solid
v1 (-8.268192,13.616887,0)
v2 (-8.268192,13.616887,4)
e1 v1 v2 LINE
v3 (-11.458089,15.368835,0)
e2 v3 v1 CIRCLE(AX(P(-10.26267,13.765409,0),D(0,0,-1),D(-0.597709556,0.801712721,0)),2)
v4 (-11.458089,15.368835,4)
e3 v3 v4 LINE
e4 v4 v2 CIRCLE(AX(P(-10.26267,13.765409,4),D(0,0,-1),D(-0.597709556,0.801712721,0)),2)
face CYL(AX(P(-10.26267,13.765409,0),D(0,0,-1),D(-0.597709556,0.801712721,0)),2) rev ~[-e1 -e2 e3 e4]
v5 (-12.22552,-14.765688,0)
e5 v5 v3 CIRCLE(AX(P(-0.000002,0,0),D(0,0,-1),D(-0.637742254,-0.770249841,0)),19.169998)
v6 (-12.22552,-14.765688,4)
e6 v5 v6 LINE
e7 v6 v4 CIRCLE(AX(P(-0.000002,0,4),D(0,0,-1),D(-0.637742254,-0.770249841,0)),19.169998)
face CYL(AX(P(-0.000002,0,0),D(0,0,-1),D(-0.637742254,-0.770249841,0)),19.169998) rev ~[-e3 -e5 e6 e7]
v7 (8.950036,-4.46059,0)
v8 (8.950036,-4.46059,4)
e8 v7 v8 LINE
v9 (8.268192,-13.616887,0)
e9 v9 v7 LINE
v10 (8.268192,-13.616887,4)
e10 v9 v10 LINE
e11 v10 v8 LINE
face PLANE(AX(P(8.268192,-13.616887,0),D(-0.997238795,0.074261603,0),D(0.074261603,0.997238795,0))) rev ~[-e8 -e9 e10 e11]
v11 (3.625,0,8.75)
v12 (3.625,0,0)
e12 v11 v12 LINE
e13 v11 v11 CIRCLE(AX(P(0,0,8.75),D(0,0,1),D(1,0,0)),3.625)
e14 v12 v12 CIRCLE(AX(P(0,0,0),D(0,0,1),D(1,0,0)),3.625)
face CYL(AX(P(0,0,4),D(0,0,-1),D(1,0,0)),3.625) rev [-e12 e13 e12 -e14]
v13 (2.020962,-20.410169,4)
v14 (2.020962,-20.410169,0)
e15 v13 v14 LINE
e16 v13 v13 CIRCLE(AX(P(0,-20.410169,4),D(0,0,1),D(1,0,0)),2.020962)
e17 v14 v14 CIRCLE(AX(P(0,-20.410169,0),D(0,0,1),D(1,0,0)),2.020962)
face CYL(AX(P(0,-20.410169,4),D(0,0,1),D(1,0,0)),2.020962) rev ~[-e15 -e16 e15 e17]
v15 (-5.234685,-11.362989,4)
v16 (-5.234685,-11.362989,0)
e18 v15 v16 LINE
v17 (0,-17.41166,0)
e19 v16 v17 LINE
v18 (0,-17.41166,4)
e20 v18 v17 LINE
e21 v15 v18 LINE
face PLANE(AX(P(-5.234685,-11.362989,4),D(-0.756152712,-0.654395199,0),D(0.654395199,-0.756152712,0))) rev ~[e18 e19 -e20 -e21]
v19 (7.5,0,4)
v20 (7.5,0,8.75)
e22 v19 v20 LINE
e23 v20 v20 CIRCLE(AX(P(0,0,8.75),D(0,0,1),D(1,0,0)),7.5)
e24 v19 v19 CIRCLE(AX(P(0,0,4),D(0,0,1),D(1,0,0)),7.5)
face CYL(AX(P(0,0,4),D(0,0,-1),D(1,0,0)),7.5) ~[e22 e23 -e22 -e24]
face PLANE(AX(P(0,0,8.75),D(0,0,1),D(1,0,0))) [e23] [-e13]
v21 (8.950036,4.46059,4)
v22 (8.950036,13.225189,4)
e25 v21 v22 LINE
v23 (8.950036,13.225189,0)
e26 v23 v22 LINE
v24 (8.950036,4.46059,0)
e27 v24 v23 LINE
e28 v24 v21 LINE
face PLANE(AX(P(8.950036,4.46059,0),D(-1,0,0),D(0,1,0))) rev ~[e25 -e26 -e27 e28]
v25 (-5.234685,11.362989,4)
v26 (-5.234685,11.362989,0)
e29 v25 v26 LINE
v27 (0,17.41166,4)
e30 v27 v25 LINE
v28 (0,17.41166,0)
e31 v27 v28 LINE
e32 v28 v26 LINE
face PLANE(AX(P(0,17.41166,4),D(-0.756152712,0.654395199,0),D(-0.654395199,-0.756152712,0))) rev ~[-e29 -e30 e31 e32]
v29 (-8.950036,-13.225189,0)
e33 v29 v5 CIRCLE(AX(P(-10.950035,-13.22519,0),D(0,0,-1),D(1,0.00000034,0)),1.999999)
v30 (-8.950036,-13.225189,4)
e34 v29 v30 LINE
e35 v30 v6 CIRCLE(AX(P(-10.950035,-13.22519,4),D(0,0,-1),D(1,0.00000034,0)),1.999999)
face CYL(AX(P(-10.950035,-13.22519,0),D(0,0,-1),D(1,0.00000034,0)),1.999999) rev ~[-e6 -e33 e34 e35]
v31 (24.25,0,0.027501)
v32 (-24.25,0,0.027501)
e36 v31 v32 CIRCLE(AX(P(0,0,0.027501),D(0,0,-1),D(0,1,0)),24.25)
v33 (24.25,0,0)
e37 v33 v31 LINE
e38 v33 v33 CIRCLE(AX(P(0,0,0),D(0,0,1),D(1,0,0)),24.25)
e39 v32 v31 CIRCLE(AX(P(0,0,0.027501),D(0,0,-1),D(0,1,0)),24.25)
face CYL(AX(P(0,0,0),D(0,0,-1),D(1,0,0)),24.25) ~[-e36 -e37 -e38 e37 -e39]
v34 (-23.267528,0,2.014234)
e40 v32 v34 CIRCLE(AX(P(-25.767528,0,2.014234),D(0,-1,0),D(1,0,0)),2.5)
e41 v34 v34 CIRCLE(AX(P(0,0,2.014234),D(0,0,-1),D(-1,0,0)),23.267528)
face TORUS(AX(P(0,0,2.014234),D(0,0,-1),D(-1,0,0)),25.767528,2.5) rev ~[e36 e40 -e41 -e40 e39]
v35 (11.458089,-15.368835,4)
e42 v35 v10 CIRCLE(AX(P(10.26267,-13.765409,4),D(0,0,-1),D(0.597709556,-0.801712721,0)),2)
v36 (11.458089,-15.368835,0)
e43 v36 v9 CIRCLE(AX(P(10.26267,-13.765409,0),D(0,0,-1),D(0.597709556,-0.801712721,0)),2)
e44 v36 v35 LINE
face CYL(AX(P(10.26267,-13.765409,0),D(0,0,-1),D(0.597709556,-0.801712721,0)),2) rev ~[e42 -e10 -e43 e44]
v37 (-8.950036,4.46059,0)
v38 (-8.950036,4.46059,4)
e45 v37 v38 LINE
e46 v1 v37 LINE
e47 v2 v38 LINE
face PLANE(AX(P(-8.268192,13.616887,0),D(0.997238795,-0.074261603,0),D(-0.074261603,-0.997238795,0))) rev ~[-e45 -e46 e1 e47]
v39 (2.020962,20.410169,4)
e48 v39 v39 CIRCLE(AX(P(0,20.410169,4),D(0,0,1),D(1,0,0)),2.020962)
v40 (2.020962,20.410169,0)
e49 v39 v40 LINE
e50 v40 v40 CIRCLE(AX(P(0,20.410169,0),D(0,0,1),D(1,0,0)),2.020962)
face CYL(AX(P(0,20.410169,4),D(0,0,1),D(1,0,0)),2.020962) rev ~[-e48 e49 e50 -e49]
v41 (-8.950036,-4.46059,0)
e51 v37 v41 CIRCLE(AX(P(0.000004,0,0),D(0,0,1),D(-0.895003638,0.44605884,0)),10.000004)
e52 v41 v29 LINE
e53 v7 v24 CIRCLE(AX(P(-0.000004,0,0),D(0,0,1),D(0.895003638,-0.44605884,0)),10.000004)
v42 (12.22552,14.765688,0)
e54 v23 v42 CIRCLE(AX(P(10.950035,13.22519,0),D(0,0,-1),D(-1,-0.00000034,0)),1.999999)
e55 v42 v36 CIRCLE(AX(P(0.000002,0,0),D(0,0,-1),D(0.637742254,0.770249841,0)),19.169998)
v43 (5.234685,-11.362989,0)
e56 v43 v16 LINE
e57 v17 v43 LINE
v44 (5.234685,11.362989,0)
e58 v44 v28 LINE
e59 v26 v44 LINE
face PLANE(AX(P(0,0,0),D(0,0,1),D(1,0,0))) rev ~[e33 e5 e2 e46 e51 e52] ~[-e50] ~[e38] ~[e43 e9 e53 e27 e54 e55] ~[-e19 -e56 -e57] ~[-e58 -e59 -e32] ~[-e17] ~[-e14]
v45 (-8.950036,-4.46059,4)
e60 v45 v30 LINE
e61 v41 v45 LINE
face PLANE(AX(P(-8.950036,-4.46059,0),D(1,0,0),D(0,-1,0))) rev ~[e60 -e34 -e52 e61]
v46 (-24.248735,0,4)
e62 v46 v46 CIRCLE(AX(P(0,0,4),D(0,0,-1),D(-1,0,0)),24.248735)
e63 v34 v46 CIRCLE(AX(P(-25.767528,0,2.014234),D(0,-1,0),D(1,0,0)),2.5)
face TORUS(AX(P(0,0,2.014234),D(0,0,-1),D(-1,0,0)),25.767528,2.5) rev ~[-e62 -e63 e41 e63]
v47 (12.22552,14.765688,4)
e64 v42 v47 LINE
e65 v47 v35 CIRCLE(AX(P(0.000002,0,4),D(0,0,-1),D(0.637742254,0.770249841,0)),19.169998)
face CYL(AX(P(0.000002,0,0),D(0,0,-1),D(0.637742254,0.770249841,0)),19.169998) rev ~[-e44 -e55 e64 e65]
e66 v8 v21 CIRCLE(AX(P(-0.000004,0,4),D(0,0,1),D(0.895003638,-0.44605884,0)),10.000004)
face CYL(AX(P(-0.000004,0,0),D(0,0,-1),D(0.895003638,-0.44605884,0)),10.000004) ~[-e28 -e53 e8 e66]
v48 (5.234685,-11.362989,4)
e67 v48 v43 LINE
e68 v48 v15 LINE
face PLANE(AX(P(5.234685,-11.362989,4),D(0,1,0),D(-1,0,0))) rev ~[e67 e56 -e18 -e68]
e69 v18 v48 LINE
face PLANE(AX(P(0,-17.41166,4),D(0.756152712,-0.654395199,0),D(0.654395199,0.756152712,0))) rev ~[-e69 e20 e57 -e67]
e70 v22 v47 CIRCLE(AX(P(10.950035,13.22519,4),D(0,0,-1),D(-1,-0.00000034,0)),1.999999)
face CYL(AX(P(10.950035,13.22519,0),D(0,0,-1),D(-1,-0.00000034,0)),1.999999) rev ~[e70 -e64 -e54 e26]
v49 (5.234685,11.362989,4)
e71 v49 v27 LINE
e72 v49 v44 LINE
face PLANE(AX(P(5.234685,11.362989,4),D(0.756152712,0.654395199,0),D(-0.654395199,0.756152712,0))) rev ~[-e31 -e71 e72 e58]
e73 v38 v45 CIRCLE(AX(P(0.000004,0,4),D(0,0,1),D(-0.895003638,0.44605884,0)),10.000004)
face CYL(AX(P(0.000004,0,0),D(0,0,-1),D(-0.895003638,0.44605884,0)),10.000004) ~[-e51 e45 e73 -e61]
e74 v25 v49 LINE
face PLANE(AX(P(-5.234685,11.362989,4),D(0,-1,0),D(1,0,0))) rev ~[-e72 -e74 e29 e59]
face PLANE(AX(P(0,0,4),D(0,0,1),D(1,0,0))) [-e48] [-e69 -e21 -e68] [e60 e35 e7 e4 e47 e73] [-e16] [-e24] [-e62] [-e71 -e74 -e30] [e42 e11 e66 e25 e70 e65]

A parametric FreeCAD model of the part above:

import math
import FreeCAD as App
import Part
import Sketcher
from FreeCAD import Vector
Q = App.Units.Quantity


def add_polygon(sketch, points):
    """Adds a closed chain of lines whose ends are joined by coincident constraints."""
    first, n = sketch.GeometryCount, len(points)
    for a, b in zip(points, points[1:] + points[:1]):
        sketch.addGeometry(Part.LineSegment(App.Vector(*a, 0), App.Vector(*b, 0)), False)
    for i in range(n):
        sketch.addConstraint(Sketcher.Constraint("Coincident", first + i, 2, first + (i + 1) % n, 1))

doc = App.newDocument("Part")
body = doc.addObject("PartDesign::Body", "Body")

# Sketch on XY plane
sketch1 = body.newObject("Sketcher::SketchObject", "Sketch")
sketch1.AttachmentSupport = (doc.getObject("XY_Plane"), [""])
sketch1.MapMode = "FlatFace"
sketch1.addGeometry([
    Part.Circle(Vector(0, 0, 0), Vector(0, 0, 1), 24.2),  # 0
    Part.Circle(Vector(0, 0, 0), Vector(0, 0, 1), 3.6),  # 1
    Part.ArcOfCircle(Part.Circle(Vector(0, 0, 0), Vector(0, 0, 1), 10), math.radians(-26), math.radians(26)),  # 2
    Part.LineSegment(Vector(9, 4.5, 0), Vector(9, 13.2, 0)),  # 3
    Part.ArcOfCircle(Part.Circle(Vector(11, 13.2, 0), Vector(0, 0, 1), 2), math.radians(50), math.radians(180)),  # 4
    Part.ArcOfCircle(Part.Circle(Vector(0, 0, 0), Vector(0, 0, 1), 19.2), math.radians(-53), math.radians(50)),  # 5
    Part.ArcOfCircle(Part.Circle(Vector(10.3, -13.8, 0), Vector(0, 0, 1), 2), math.radians(176), math.radians(307)),  # 6
    Part.LineSegment(Vector(8.3, -13.6, 0), Vector(9, -4.5, 0)),  # 7
    Part.ArcOfCircle(Part.Circle(Vector(-10.3, 13.8, 0), Vector(0, 0, 1), 2), math.radians(-4), math.radians(127)),  # 8
    Part.LineSegment(Vector(-8.3, 13.6, 0), Vector(-9, 4.5, 0)),  # 9
    Part.ArcOfCircle(Part.Circle(Vector(0, 0, 0), Vector(0, 0, 1), 10), math.radians(154), math.radians(206)),  # 10
    Part.LineSegment(Vector(-9, -4.5, 0), Vector(-9, -13.2, 0)),  # 11
    Part.ArcOfCircle(Part.Circle(Vector(-11, -13.2, 0), Vector(0, 0, 1), 2), math.radians(-130), math.radians(0)),  # 12
    Part.ArcOfCircle(Part.Circle(Vector(0, 0, 0), Vector(0, 0, 1), 19.2), math.radians(127), math.radians(230)),  # 13
], False)
sketch1.addConstraint([
    Sketcher.Constraint("Coincident", 2, 2, 3, 1),
    Sketcher.Constraint("Tangent", 3, 2, 4, 2),
    Sketcher.Constraint("Tangent", 4, 1, 5, 2),
    Sketcher.Constraint("Tangent", 5, 1, 6, 2),
    Sketcher.Constraint("Tangent", 6, 1, 7, 1),
    Sketcher.Constraint("Coincident", 7, 2, 2, 1),
    Sketcher.Constraint("Tangent", 8, 1, 9, 1),
    Sketcher.Constraint("Coincident", 9, 2, 10, 1),
    Sketcher.Constraint("Coincident", 10, 2, 11, 1),
    Sketcher.Constraint("Tangent", 11, 2, 12, 2),
    Sketcher.Constraint("Tangent", 12, 1, 13, 2),
    Sketcher.Constraint("Tangent", 13, 1, 8, 2),
    Sketcher.Constraint("Vertical", 3),
    Sketcher.Constraint("Vertical", 11),
    Sketcher.Constraint("Coincident", 0, 3, -1, 1),
    Sketcher.Constraint("Coincident", 1, 3, -1, 1),
    Sketcher.Constraint("Coincident", 2, 3, -1, 1),
    Sketcher.Constraint("Coincident", 5, 3, -1, 1),
    Sketcher.Constraint("Coincident", 10, 3, -1, 1),
    Sketcher.Constraint("Coincident", 13, 3, -1, 1),
    Sketcher.Constraint("Equal", 4, 6),
    Sketcher.Constraint("Equal", 6, 8),
    Sketcher.Constraint("Equal", 2, 10),
    Sketcher.Constraint("Equal", 8, 12),
    Sketcher.Constraint("Equal", 5, 13),
    Sketcher.Constraint("Symmetric", 6, 1, 8, 1, -1, 1),
    Sketcher.Constraint("Horizontal", 2, 2, 9, 2),
    Sketcher.Constraint("Horizontal", 7, 2, 10, 2),
    Sketcher.Constraint("Radius", 4, Q("1.999999 mm")),
    Sketcher.Constraint("Diameter", 0, Q("48.5 mm")),
    Sketcher.Constraint("Diameter", 1, Q("7.25 mm")),
    Sketcher.Constraint("Radius", 5, Q("19.169998 mm")),
    Sketcher.Constraint("DistanceY", 3, 1, 3, 2, Q("8.764599 mm")),
    Sketcher.Constraint("Radius", 2, Q("10.000004 mm")),
    Sketcher.Constraint("DistanceY", 6, 3, 4, 3, Q("26.990599 mm")),
])
pad1 = body.newObject("PartDesign::Pad", "Pad")
pad1.Profile = sketch1
pad1.Length = 4

# Sketch on XY plane
sketch2 = body.newObject("Sketcher::SketchObject", "Sketch001")
sketch2.AttachmentSupport = (doc.getObject("XY_Plane"), [""])
sketch2.MapMode = "FlatFace"
sketch2.AttachmentOffset = App.Placement(Vector(0, 0, 4), App.Rotation())
sketch2.addGeometry([
    Part.Circle(Vector(0, 0, 0), Vector(0, 0, 1), 7.5),
    Part.Circle(Vector(0, 0, 0), Vector(0, 0, 1), 3.6),
], False)
sketch2.addConstraint([
    Sketcher.Constraint("Coincident", 0, 3, -1, 1),
    Sketcher.Constraint("Coincident", 1, 3, -1, 1),
    Sketcher.Constraint("Diameter", 0, Q("15 mm")),
    Sketcher.Constraint("Diameter", 1, Q("7.25 mm")),
])
pad2 = body.newObject("PartDesign::Pad", "Pad001")
pad2.Profile = sketch2
pad2.Length = 4.75

# Sketch on XY plane
sketch3 = body.newObject("Sketcher::SketchObject", "Sketch002")
sketch3.AttachmentSupport = (doc.getObject("XY_Plane"), [""])
sketch3.MapMode = "FlatFace"
sketch3.AttachmentOffset = App.Placement(Vector(0, 0, 4), App.Rotation())
add_polygon(sketch3, [(-5.2, 11.4), (5.2, 11.4), (0, 17.4)])  # lines 0-2
add_polygon(sketch3, [(-5.2, -11.4), (0, -17.4), (5.2, -11.4)])  # lines 3-5
sketch3.addGeometry(Part.Circle(Vector(0, 20.4, 0), Vector(0, 0, 1), 2), False)  # 6
sketch3.addGeometry(Part.Circle(Vector(0, -20.4, 0), Vector(0, 0, 1), 2), False)  # 7
sketch3.addConstraint([
    Sketcher.Constraint("Horizontal", 0),
    Sketcher.Constraint("Horizontal", 5),
    Sketcher.Constraint("Equal", 6, 7),
    Sketcher.Constraint("Symmetric", 6, 3, 7, 3, -1, 1),
    Sketcher.Constraint("Symmetric", 1, 2, 3, 2, -1, 1),
    Sketcher.Constraint("Symmetric", 2, 2, 4, 2, -1, 1),
    Sketcher.Constraint("PointOnObject", 6, 3, -2),
    Sketcher.Constraint("PointOnObject", 1, 2, -2),
    Sketcher.Constraint("Parallel", 1, 3),
    Sketcher.Constraint("Vertical", 0, 2, 4, 2),
    Sketcher.Constraint("Diameter", 6, Q("4.041924 mm")),
    Sketcher.Constraint("DistanceX", 0, 1, 0, 2, Q("10.46937 mm")),
    Sketcher.Constraint("Distance", 1, Q("7.999272 mm")),
    Sketcher.Constraint("DistanceY", -1, 1, 6, 3, Q("20.410169 mm")),
    Sketcher.Constraint("DistanceY", -1, 1, 0, 2, Q("11.362989 mm")),
])
pocket1 = body.newObject("PartDesign::Pocket", "Pocket")
pocket1.Profile = sketch3
pocket1.Type = "ThroughAll"

# Sketch on XZ plane
sketch4 = body.newObject("Sketcher::SketchObject", "Sketch003")
sketch4.AttachmentSupport = (doc.getObject("XZ_Plane"), [""])
sketch4.MapMode = "FlatFace"
sketch4.addGeometry(Part.Circle(Vector(-25.8, 2, 0), Vector(0, 0, 1), 2.5), False)
sketch4.addConstraint([
    Sketcher.Constraint("Diameter", 0, Q("5 mm")),
    Sketcher.Constraint("DistanceX", 0, 3, -1, 1, Q("25.767528 mm")),
    Sketcher.Constraint("DistanceY", -1, 1, 0, 3, Q("2.014234 mm")),
])
groove = body.newObject("PartDesign::Groove", "Groove")
groove.Profile = sketch4
groove.ReferenceAxis = (sketch4, ["V_Axis"])
groove.Angle = 360

doc.recompute()
